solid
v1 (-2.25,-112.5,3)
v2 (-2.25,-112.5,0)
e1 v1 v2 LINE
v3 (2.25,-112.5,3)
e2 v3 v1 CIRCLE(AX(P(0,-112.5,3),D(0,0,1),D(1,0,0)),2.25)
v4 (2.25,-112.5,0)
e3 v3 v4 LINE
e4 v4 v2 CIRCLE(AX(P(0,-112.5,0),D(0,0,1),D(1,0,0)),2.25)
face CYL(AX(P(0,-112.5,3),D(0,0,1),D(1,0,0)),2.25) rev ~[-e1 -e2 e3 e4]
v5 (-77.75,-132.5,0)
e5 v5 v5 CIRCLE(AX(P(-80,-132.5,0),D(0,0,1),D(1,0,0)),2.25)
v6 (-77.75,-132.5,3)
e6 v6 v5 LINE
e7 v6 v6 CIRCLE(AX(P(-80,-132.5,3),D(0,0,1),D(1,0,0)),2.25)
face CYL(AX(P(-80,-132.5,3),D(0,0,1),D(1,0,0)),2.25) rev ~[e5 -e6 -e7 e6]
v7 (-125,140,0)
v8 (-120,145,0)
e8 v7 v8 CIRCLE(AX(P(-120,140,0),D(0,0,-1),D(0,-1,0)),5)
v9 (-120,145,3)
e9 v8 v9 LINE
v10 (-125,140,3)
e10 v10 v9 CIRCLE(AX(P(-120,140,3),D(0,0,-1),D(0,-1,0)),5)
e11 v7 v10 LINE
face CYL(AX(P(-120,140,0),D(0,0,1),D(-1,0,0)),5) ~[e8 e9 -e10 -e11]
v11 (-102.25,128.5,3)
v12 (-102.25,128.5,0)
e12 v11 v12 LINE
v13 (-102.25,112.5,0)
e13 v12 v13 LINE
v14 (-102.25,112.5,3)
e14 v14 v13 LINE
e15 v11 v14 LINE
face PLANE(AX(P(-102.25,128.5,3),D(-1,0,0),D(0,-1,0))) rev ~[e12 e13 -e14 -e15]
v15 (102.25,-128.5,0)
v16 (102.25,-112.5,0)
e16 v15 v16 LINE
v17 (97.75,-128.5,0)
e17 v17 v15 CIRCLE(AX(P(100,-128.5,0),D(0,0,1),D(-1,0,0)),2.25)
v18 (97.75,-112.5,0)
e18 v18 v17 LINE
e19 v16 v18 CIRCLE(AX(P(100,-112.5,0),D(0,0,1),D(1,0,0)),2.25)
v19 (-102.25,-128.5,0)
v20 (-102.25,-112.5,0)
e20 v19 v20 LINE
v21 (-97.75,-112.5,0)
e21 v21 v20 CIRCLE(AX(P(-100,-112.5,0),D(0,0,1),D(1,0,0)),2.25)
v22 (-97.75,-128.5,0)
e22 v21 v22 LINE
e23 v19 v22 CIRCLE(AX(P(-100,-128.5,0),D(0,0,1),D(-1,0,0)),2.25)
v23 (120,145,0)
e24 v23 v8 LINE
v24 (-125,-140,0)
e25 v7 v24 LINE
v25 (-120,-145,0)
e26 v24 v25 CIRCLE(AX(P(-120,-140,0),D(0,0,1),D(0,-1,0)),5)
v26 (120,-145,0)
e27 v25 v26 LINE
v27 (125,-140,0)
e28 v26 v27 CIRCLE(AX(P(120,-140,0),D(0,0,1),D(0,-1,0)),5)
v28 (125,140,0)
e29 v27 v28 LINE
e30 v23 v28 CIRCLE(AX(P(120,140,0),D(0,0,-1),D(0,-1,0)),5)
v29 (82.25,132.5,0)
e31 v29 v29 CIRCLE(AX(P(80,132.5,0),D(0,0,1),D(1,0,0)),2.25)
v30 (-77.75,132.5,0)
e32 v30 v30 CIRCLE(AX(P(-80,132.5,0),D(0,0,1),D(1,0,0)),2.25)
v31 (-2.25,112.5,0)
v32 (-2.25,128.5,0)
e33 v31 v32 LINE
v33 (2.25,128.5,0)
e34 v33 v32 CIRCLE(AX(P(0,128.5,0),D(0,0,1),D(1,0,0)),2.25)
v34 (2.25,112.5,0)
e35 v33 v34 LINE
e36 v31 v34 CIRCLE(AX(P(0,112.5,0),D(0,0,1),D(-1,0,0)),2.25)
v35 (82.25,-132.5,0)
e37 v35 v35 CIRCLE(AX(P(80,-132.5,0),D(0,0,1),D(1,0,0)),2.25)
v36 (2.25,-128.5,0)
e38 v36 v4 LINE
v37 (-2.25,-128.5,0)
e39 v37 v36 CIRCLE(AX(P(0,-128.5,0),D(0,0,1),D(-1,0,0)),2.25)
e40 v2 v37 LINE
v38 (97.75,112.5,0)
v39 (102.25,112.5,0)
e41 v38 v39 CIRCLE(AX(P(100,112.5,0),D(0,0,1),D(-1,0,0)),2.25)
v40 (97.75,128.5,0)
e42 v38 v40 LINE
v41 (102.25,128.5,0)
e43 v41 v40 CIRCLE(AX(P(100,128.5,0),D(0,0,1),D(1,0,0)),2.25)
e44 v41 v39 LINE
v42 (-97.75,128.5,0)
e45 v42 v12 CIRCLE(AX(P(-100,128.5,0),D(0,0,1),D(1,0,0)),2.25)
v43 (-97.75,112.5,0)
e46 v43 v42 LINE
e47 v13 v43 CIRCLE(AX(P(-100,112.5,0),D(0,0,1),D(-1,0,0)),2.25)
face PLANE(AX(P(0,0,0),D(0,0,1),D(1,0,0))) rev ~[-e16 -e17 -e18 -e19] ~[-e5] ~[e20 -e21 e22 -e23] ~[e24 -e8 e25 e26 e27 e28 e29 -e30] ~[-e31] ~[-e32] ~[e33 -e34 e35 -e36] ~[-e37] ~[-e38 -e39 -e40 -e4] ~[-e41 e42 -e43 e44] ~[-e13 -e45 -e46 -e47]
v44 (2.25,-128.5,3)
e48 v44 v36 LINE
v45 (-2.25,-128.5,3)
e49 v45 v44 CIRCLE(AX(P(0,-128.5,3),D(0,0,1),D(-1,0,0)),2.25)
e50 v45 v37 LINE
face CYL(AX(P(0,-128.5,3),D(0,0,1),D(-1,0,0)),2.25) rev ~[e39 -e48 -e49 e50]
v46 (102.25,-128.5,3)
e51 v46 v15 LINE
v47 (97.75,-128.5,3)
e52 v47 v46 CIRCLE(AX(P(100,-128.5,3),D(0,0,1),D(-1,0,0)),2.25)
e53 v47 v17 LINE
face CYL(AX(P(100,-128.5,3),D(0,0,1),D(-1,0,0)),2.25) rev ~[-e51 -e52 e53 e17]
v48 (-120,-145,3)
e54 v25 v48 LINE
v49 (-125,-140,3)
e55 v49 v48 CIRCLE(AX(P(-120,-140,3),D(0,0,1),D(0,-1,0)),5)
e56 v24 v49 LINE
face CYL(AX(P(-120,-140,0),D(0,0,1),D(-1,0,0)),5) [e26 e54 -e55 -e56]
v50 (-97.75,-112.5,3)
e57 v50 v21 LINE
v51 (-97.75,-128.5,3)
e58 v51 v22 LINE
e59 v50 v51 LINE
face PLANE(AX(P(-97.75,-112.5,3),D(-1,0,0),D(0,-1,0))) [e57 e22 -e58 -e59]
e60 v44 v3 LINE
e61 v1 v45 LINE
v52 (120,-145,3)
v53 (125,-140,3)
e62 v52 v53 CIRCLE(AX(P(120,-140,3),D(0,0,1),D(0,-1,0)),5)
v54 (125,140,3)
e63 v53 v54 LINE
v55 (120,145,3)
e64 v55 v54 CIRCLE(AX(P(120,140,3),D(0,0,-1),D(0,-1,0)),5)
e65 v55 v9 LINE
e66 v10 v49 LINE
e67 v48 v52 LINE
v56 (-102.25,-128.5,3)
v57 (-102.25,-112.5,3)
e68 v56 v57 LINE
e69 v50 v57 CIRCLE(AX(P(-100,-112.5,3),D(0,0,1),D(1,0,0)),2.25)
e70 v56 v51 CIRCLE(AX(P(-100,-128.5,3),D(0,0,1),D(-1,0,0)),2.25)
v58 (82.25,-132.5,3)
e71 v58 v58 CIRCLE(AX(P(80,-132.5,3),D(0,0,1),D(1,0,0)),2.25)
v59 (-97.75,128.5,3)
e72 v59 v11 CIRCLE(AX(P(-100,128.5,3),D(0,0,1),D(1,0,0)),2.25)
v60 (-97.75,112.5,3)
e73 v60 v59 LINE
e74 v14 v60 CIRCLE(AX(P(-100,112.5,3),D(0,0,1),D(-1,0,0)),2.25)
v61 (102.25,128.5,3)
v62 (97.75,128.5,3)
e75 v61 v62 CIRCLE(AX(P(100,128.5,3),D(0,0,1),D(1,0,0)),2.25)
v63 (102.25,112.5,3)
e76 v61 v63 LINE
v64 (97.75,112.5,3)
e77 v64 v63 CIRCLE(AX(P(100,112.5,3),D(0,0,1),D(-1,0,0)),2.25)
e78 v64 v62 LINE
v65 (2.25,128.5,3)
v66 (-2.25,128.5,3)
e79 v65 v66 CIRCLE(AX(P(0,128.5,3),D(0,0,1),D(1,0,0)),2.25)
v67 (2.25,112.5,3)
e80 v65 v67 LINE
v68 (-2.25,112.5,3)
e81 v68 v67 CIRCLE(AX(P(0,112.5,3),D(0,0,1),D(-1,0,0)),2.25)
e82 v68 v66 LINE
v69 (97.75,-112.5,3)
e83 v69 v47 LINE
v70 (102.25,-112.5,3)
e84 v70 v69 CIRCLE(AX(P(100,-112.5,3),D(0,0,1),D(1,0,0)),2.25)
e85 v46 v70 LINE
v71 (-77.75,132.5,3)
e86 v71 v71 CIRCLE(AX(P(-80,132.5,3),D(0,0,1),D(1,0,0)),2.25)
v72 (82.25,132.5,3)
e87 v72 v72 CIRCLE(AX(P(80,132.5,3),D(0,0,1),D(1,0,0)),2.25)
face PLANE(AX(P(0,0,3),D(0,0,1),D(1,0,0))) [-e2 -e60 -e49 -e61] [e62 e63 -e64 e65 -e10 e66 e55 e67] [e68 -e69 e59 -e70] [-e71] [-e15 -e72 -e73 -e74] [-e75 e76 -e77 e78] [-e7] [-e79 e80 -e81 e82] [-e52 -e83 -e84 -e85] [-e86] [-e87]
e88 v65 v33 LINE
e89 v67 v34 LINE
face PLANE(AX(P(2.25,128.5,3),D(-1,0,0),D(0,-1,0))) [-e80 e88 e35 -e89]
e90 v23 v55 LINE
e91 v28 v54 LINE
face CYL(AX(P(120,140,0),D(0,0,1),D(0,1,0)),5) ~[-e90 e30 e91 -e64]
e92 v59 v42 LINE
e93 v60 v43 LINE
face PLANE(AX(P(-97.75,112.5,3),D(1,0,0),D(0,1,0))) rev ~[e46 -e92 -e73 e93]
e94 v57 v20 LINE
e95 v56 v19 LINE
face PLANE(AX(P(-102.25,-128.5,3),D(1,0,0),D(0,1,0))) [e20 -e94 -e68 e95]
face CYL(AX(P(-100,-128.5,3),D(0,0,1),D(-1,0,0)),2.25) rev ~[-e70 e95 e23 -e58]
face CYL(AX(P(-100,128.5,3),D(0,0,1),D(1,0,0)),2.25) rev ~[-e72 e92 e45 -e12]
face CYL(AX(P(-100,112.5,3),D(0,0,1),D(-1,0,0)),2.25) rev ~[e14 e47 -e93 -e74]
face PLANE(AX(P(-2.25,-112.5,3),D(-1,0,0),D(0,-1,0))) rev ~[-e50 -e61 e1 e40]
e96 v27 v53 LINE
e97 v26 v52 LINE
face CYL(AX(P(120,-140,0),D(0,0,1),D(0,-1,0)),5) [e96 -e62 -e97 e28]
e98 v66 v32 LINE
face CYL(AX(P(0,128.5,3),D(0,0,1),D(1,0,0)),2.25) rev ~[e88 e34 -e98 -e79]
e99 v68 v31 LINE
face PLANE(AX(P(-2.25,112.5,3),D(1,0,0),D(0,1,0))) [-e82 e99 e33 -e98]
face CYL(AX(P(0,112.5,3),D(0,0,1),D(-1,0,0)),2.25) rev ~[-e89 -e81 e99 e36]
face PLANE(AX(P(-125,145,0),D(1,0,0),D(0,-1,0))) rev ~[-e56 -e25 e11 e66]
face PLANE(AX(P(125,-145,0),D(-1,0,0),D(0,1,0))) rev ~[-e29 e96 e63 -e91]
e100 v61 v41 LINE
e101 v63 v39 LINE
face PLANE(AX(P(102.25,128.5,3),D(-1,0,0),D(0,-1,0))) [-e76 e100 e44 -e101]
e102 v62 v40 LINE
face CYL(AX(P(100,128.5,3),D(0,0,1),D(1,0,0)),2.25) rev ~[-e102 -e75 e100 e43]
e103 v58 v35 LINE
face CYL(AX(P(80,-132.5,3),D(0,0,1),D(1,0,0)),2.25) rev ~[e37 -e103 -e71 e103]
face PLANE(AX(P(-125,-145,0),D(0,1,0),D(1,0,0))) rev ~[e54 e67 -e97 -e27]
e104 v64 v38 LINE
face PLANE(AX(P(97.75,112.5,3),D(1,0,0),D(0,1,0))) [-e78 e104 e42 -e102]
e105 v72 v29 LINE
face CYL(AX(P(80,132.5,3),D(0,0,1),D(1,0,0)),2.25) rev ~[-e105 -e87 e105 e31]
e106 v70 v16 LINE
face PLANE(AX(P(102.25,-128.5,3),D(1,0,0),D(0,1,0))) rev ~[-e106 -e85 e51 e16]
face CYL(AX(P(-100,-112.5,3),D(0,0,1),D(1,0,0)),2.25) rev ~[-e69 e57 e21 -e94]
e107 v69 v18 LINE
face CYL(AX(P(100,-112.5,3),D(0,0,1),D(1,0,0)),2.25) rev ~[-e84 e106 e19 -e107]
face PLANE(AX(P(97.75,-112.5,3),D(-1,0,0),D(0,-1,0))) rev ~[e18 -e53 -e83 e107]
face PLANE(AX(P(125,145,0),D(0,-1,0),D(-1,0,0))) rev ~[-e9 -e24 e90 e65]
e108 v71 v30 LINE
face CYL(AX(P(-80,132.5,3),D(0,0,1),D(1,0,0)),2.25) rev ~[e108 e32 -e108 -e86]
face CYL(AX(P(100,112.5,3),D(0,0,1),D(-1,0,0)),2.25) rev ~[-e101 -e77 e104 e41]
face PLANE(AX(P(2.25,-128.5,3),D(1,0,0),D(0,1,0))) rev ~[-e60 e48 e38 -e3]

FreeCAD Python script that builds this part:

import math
import FreeCAD as App
import Part
import Sketcher

V = App.Vector
Q = App.Units.Quantity


def edges_at(feature, points):
    """Names of the edges that pass closest to the given points."""
    edges = feature.Shape.Edges
    near = lambda p: min(range(len(edges)), key=lambda i: edges[i].distToShape(Part.Vertex(*p))[0])
    return sorted({f"Edge{near(p) + 1}" for p in points})


def add_polygon(sketch, points):
    """Adds a closed chain of lines whose ends are joined by coincident constraints."""
    first, n = sketch.GeometryCount, len(points)
    for a, b in zip(points, points[1:] + points[:1]):
        sketch.addGeometry(Part.LineSegment(App.Vector(*a, 0), App.Vector(*b, 0)), False)
    for i in range(n):
        sketch.addConstraint(Sketcher.Constraint("Coincident", first + i, 2, first + (i + 1) % n, 1))

doc = App.newDocument("Part")
body = doc.addObject("PartDesign::Body", "Body")

# Sketch on XY plane
sketch1 = body.newObject("Sketcher::SketchObject", "Sketch")
sketch1.AttachmentSupport = (doc.getObject("XY_Plane"), [""])
sketch1.MapMode = "FlatFace"
add_polygon(sketch1, [(-125, 145), (-125, -145), (125, -145), (125, 145)])  # lines 0-3
sketch1.addConstraint([
    Sketcher.Constraint("Vertical", 0),
    Sketcher.Constraint("Horizontal", 1),
    Sketcher.Constraint("Vertical", 2),
    Sketcher.Constraint("Horizontal", 3),
    Sketcher.Constraint("Symmetric", 0, 2, 2, 2, -1, 1),
    Sketcher.Constraint("DistanceX", 1, 1, 1, 2, Q("250 mm")),
    Sketcher.Constraint("DistanceY", 0, 2, 0, 1, Q("290 mm")),
])
pad1 = body.newObject("PartDesign::Pad", "Pad")
pad1.Profile = sketch1
pad1.Length = 3

# Sketch on XY plane
sketch2 = body.newObject("Sketcher::SketchObject", "Sketch001")
sketch2.AttachmentSupport = (doc.getObject("XY_Plane"), [""])
sketch2.MapMode = "FlatFace"
sketch2.AttachmentOffset = App.Placement(V(0, 0, 3), App.Rotation())
sketch2.addGeometry([
    Part.LineSegment(V(-102.2, -112.5, 0), V(-102.2, -128.5, 0)),  # 0
    Part.ArcOfCircle(Part.Circle(V(-100, -128.5, 0), V(0, 0, 1), 2.2), math.radians(180), math.radians(360)),  # 1
    Part.LineSegment(V(-97.8, -128.5, 0), V(-97.8, -112.5, 0)),  # 2
    Part.ArcOfCircle(Part.Circle(V(-100, -112.5, 0), V(0, 0, 1), 2.2), math.radians(0), math.radians(180)),  # 3
    Part.ArcOfCircle(Part.Circle(V(0, -128.5, 0), V(0, 0, 1), 2.2), math.radians(180), math.radians(360)),  # 4
    Part.LineSegment(V(2.2, -128.5, 0), V(2.2, -112.5, 0)),  # 5
    Part.ArcOfCircle(Part.Circle(V(0, -112.5, 0), V(0, 0, 1), 2.2), math.radians(0), math.radians(180)),  # 6
    Part.LineSegment(V(-2.2, -112.5, 0), V(-2.2, -128.5, 0)),  # 7
    Part.ArcOfCircle(Part.Circle(V(100, -128.5, 0), V(0, 0, 1), 2.2), math.radians(180), math.radians(360)),  # 8
    Part.LineSegment(V(102.2, -128.5, 0), V(102.2, -112.5, 0)),  # 9
    Part.ArcOfCircle(Part.Circle(V(100, -112.5, 0), V(0, 0, 1), 2.2), math.radians(0), math.radians(180)),  # 10
    Part.LineSegment(V(97.8, -112.5, 0), V(97.8, -128.5, 0)),  # 11
    Part.ArcOfCircle(Part.Circle(V(-100, 128.5, 0), V(0, 0, 1), 2.2), math.radians(0), math.radians(180)),  # 12
    Part.LineSegment(V(-102.2, 128.5, 0), V(-102.2, 112.5, 0)),  # 13
    Part.ArcOfCircle(Part.Circle(V(-100, 112.5, 0), V(0, 0, 1), 2.2), math.radians(180), math.radians(360)),  # 14
    Part.LineSegment(V(-97.8, 112.5, 0), V(-97.8, 128.5, 0)),  # 15
    Part.LineSegment(V(2.2, 112.5, 0), V(2.2, 128.5, 0)),  # 16
    Part.ArcOfCircle(Part.Circle(V(0, 128.5, 0), V(0, 0, 1), 2.2), math.radians(0), math.radians(180)),  # 17
    Part.LineSegment(V(-2.2, 128.5, 0), V(-2.2, 112.5, 0)),  # 18
    Part.ArcOfCircle(Part.Circle(V(0, 112.5, 0), V(0, 0, 1), 2.2), math.radians(180), math.radians(360)),  # 19
    Part.LineSegment(V(97.8, 128.5, 0), V(97.8, 112.5, 0)),  # 20
    Part.ArcOfCircle(Part.Circle(V(100, 112.5, 0), V(0, 0, 1), 2.2), math.radians(180), math.radians(360)),  # 21
    Part.LineSegment(V(102.2, 112.5, 0), V(102.2, 128.5, 0)),  # 22
    Part.ArcOfCircle(Part.Circle(V(100, 128.5, 0), V(0, 0, 1), 2.2), math.radians(0), math.radians(180)),  # 23
    Part.Circle(V(-80, -132.5, 0), V(0, 0, 1), 2.2),  # 24
    Part.Circle(V(80, -132.5, 0), V(0, 0, 1), 2.2),  # 25
    Part.Circle(V(-80, 132.5, 0), V(0, 0, 1), 2.2),  # 26
    Part.Circle(V(80, 132.5, 0), V(0, 0, 1), 2.2),  # 27
], False)
sketch2.addConstraint([
    Sketcher.Constraint("Tangent", 0, 2, 1, 1),
    Sketcher.Constraint("Tangent", 1, 2, 2, 1),
    Sketcher.Constraint("Tangent", 2, 2, 3, 1),
    Sketcher.Constraint("Tangent", 3, 2, 0, 1),
    Sketcher.Constraint("Tangent", 4, 2, 5, 1),
    Sketcher.Constraint("Tangent", 5, 2, 6, 1),
    Sketcher.Constraint("Tangent", 6, 2, 7, 1),
    Sketcher.Constraint("Tangent", 7, 2, 4, 1),
    Sketcher.Constraint("Tangent", 8, 2, 9, 1),
    Sketcher.Constraint("Tangent", 9, 2, 10, 1),
    Sketcher.Constraint("Tangent", 10, 2, 11, 1),
    Sketcher.Constraint("Tangent", 11, 2, 8, 1),
    Sketcher.Constraint("Tangent", 12, 2, 13, 1),
    Sketcher.Constraint("Tangent", 13, 2, 14, 1),
    Sketcher.Constraint("Tangent", 14, 2, 15, 1),
    Sketcher.Constraint("Tangent", 15, 2, 12, 1),
    Sketcher.Constraint("Tangent", 16, 2, 17, 1),
    Sketcher.Constraint("Tangent", 17, 2, 18, 1),
    Sketcher.Constraint("Tangent", 18, 2, 19, 1),
    Sketcher.Constraint("Tangent", 19, 2, 16, 1),
    Sketcher.Constraint("Tangent", 20, 2, 21, 1),
    Sketcher.Constraint("Tangent", 21, 2, 22, 1),
    Sketcher.Constraint("Tangent", 22, 2, 23, 1),
    Sketcher.Constraint("Tangent", 23, 2, 20, 1),
    Sketcher.Constraint("Vertical", 0),
    Sketcher.Constraint("Vertical", 2),
    Sketcher.Constraint("Vertical", 5),
    Sketcher.Constraint("Vertical", 7),
    Sketcher.Constraint("Vertical", 9),
    Sketcher.Constraint("Vertical", 11),
    Sketcher.Constraint("Vertical", 13),
    Sketcher.Constraint("Vertical", 15),
    Sketcher.Constraint("Vertical", 16),
    Sketcher.Constraint("Vertical", 18),
    Sketcher.Constraint("Vertical", 20),
    Sketcher.Constraint("Vertical", 22),
    Sketcher.Constraint("Equal", 3, 4),
    Sketcher.Constraint("Equal", 6, 8),
    Sketcher.Constraint("Equal", 10, 12),
    Sketcher.Constraint("Equal", 14, 17),
    Sketcher.Constraint("Equal", 19, 21),
    Sketcher.Constraint("Equal", 23, 24),
    Sketcher.Constraint("Equal", 24, 25),
    Sketcher.Constraint("Equal", 25, 26),
    Sketcher.Constraint("Equal", 26, 27),
    Sketcher.Constraint("Symmetric", 8, 3, 12, 3, -1, 1),
    Sketcher.Constraint("Symmetric", 4, 3, 17, 3, -1, 1),
    Sketcher.Constraint("Symmetric", 3, 3, 21, 3, -1, 1),
    Sketcher.Constraint("Symmetric", 25, 3, 26, 3, -1, 1),
    Sketcher.Constraint("Symmetric", 24, 3, 27, 3, -1, 1),
    Sketcher.Constraint("Symmetric", 1, 3, 8, 3, -2),
    Sketcher.Constraint("Symmetric", 24, 3, 25, 3, -2),
    Sketcher.Constraint("Symmetric", 6, 3, 19, 3, -1),
    Sketcher.Constraint("Horizontal", 1, 3, 4, 3),
    Sketcher.Constraint("Horizontal", 3, 3, 6, 3),
    Sketcher.Constraint("Horizontal", 6, 3, 10, 3),
    Sketcher.Constraint("Horizontal", 14, 3, 19, 3),
    Sketcher.Constraint("Horizontal", 17, 3, 23, 3),
    Sketcher.Constraint("Diameter", 24, Q("4.5 mm")),
    Sketcher.Constraint("DistanceY", 0, 2, 0, 1, Q("16 mm")),
    Sketcher.Constraint("DistanceX", 1, 3, -1, 1, Q("100 mm")),
    Sketcher.Constraint("DistanceX", 24, 3, -1, 1, Q("80 mm")),
    Sketcher.Constraint("DistanceY", 3, 3, 12, 3, Q("241 mm")),
    Sketcher.Constraint("DistanceY", 24, 3, 1, 3, Q("4 mm")),
])
pocket1 = body.newObject("PartDesign::Pocket", "Pocket")
pocket1.Profile = sketch2
pocket1.Type = "ThroughAll"
doc.recompute()

fillet = body.newObject("PartDesign::Fillet", "Fillet")
fillet.Base = (pocket1, edges_at(pocket1, [
    (-125, 145, 1.5),
    (125, 145, 1.5),
    (125, -145, 1.5),
    (-125, -145, 1.5),
]))
fillet.Radius = 5

doc.recompute()
